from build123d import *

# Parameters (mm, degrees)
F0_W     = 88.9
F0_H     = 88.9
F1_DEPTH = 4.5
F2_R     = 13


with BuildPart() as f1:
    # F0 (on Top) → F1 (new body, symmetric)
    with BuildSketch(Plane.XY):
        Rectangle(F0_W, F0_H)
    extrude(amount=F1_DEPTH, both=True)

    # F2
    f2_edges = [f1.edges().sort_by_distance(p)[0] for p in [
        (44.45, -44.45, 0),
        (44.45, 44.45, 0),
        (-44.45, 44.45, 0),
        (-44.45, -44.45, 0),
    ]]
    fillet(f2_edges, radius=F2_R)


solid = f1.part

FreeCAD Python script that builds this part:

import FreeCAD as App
import Part
import Sketcher

V = App.Vector


def edges_at(feature, points):
    """Names of the edges that pass closest to the given points."""
    edges = feature.Shape.Edges
    near = lambda p: min(range(len(edges)), key=lambda i: edges[i].distToShape(Part.Vertex(*p))[0])
    return sorted({f"Edge{near(p) + 1}" for p in points})

doc = App.newDocument("Part")
params = doc.addObject("Spreadsheet::Sheet", "Params")
for row, (alias, value) in enumerate([
    ("sketch1_width", "88.9 mm"),
    ("pad1_length", "9 mm"),
    ("fillet_radius", "13 mm"),
], start=1):
    params.set(f"A{row}", alias)
    params.set(f"B{row}", "=" + value)
    params.setAlias(f"B{row}", alias)

body = doc.addObject("PartDesign::Body", "Body")

# Sketch on XY plane
sketch1 = doc.addObject("Sketcher::SketchObject", "Sketch")
body.addObject(sketch1)
sketch1.AttachmentSupport = (doc.XY_Plane, [""])
sketch1.MapMode = "FlatFace"
sketch1.addGeometry([
    Part.LineSegment(V(-44, 44, 0), V(-44, -44, 0)),
    Part.LineSegment(V(-44, -44, 0), V(44, -44, 0)),
    Part.LineSegment(V(44, -44, 0), V(44, 44, 0)),
    Part.LineSegment(V(44, 44, 0), V(-44, 44, 0)),
], False)
sketch1.addConstraint([
    Sketcher.Constraint("Coincident", 0, 2, 1, 1),
    Sketcher.Constraint("Coincident", 1, 2, 2, 1),
    Sketcher.Constraint("Coincident", 2, 2, 3, 1),
    Sketcher.Constraint("Coincident", 3, 2, 0, 1),
    Sketcher.Constraint("Vertical", 0),
    Sketcher.Constraint("Horizontal", 1),
    Sketcher.Constraint("Vertical", 2),
    Sketcher.Constraint("Horizontal", 3),
    Sketcher.Constraint("Symmetric", 0, 2, 2, 2, -1, 1),
    Sketcher.Constraint("Equal", 3, 0),
    Sketcher.Constraint("DistanceX", 1, 1, 1, 2, 88.9),
])
sketch1.setExpression("Constraints[10]", "Params.sketch1_width")
pad1 = doc.addObject("PartDesign::Pad", "Pad")
body.addObject(pad1)
pad1.Profile = sketch1
pad1.setExpression("Length", "Params.pad1_length")
pad1.Midplane = True
doc.recompute()

fillet = doc.addObject("PartDesign::Fillet", "Fillet")
body.addObject(fillet)
fillet.Base = (pad1, edges_at(pad1, [
    (44.45, -44.45, 0),
    (44.45, 44.45, 0),
    (-44.45, 44.45, 0),
    (-44.45, -44.45, 0),
]))
fillet.setExpression("Radius", "Params.fillet_radius")

doc.recompute()
